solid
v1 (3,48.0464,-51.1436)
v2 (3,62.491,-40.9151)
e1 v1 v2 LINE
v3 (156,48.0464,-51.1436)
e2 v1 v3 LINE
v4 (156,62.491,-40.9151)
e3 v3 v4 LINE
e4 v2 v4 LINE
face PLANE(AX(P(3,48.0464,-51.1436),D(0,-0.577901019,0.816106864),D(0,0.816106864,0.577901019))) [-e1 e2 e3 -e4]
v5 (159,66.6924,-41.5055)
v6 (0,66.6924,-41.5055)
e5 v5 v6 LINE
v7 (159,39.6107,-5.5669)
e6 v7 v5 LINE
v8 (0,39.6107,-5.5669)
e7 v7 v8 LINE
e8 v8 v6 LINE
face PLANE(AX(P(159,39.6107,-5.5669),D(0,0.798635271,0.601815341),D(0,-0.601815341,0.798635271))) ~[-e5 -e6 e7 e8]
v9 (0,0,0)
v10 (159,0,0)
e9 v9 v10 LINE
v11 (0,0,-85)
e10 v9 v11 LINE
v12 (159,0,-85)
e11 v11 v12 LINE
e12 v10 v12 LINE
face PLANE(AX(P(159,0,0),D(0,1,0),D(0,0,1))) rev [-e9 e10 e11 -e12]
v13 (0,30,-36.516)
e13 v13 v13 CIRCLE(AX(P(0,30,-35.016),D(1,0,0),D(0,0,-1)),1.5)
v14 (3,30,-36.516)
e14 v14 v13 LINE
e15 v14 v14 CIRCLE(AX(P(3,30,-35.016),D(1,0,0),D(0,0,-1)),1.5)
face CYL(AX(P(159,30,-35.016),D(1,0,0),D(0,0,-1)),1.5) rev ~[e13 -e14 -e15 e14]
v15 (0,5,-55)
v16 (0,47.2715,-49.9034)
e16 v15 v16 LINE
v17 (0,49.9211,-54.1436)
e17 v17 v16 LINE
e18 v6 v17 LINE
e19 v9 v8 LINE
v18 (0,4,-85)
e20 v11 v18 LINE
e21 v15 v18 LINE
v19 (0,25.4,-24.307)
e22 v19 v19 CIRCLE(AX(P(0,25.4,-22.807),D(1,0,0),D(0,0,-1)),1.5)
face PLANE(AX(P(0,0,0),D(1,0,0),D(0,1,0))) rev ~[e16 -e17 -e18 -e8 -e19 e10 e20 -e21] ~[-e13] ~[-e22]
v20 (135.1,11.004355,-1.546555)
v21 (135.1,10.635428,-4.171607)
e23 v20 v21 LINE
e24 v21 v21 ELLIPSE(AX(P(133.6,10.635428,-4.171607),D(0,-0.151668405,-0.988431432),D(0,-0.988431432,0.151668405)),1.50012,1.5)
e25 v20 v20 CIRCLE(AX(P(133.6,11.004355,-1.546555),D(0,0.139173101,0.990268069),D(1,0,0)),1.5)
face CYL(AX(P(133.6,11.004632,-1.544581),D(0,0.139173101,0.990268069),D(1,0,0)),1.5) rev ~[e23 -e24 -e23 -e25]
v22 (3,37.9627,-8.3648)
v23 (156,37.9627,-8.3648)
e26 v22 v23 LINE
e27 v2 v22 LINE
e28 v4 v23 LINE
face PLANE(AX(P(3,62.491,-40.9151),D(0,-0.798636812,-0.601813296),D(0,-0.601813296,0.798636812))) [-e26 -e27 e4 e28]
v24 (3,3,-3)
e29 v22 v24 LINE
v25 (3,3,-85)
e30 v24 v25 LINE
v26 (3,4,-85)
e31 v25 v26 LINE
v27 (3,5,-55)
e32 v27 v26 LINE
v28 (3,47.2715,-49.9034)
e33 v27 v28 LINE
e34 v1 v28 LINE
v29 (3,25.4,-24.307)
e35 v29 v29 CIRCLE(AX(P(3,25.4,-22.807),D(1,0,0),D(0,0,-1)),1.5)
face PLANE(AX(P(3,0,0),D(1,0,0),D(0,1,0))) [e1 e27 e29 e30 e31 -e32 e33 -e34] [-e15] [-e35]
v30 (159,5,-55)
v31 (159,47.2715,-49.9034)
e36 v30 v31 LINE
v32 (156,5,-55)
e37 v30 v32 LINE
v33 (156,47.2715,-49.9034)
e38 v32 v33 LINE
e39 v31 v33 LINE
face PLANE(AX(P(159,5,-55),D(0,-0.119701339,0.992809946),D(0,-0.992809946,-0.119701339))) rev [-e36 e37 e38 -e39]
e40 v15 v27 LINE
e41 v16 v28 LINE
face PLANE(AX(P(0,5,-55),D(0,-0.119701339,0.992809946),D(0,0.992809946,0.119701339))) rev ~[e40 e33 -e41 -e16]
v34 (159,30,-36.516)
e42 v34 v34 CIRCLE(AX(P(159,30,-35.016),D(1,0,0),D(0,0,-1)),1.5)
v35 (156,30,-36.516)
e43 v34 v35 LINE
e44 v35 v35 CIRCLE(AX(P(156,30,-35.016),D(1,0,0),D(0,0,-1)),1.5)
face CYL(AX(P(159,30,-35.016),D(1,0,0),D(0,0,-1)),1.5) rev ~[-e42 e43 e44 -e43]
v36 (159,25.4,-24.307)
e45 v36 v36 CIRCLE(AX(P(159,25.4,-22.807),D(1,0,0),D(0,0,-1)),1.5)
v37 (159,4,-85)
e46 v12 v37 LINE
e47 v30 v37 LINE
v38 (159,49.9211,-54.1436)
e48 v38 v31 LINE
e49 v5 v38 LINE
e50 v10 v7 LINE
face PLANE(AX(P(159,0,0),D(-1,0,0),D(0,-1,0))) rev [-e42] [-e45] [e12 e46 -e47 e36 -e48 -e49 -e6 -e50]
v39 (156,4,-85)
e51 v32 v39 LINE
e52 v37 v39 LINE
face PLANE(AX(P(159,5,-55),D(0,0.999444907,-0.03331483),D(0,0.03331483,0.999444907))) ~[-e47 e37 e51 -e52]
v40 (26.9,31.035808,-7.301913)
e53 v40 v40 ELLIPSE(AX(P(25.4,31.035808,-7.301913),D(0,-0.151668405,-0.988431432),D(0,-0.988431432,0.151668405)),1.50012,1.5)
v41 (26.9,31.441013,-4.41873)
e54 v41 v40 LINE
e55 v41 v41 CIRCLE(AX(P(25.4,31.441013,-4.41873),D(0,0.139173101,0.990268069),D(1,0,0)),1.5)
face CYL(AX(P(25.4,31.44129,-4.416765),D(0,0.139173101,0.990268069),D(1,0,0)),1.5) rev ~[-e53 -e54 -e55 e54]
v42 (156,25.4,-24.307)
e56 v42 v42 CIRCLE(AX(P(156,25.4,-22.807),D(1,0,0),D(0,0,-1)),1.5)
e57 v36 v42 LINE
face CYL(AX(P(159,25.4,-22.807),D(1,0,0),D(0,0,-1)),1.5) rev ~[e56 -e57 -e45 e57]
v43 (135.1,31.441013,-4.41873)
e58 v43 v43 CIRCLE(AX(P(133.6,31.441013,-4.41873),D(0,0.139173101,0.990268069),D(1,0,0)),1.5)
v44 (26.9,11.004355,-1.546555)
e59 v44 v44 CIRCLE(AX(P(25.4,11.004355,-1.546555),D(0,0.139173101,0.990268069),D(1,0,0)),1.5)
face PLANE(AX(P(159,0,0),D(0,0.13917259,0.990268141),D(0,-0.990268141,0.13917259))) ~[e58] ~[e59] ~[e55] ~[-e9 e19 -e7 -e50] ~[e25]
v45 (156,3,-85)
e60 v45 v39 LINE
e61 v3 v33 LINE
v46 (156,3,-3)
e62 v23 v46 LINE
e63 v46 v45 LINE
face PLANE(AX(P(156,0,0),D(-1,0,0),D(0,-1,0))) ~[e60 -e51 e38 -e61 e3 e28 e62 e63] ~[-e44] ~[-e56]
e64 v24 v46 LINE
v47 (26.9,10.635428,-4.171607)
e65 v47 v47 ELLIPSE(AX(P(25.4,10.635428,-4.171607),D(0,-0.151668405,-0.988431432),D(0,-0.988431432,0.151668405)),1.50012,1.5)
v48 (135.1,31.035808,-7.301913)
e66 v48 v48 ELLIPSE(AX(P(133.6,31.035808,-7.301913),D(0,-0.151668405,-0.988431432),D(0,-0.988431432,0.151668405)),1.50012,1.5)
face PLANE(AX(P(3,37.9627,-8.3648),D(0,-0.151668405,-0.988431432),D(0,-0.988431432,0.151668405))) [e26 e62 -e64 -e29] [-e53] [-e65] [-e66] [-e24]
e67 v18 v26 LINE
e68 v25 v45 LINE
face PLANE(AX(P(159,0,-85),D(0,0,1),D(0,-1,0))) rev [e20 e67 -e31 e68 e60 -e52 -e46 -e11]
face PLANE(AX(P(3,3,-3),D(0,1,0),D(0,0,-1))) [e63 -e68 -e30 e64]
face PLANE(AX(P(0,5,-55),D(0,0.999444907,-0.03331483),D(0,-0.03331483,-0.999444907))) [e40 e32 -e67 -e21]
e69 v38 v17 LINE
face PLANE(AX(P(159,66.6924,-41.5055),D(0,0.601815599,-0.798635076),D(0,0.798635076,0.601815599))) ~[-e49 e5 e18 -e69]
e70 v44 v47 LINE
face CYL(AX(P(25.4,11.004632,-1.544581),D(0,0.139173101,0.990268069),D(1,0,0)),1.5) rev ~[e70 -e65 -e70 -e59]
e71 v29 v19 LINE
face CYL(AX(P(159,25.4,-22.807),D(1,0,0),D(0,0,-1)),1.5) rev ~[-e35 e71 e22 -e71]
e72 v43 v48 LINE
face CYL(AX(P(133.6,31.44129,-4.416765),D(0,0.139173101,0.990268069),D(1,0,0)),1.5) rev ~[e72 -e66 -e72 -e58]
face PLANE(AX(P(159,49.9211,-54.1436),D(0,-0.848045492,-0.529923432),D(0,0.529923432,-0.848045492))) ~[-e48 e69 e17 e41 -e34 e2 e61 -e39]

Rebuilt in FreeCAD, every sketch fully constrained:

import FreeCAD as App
import Part
import Sketcher

V = App.Vector
Q = App.Units.Quantity


def add_polygon(sketch, points):
    """Adds a closed chain of lines whose ends are joined by coincident constraints."""
    first, n = sketch.GeometryCount, len(points)
    for a, b in zip(points, points[1:] + points[:1]):
        sketch.addGeometry(Part.LineSegment(App.Vector(*a, 0), App.Vector(*b, 0)), False)
    for i in range(n):
        sketch.addConstraint(Sketcher.Constraint("Coincident", first + i, 2, first + (i + 1) % n, 1))

doc = App.newDocument("Part")
params = doc.addObject("Spreadsheet::Sheet", "Params")
for row, (alias, value) in enumerate([
    ("sketch1_width", "4 mm"),
    ("sketch1_height", "85 mm"),
    ("sketch1_length", "40 mm"),
    ("sketch1_length2", "5 mm"),
    ("sketch1_length3", "21 mm"),
    ("pad1_length", "3 mm"),
    ("sketch2_width", "3 mm"),
    ("sketch2_height", "85 mm"),
    ("sketch2_length", "40 mm"),
    ("sketch2_length2", "21 mm"),
    ("sketch2_length3", "45 mm"),
    ("pad2_length", "153 mm"),
    ("sketch3_diameter", "3 mm"),
    ("pocket1_length", "200 mm"),
    ("sketch4_diameter", "3 mm"),
    ("pocket2_length", "10 mm"),
], start=1):
    params.set(f"A{row}", alias)
    params.set(f"B{row}", "=" + value)
    params.setAlias(f"B{row}", alias)

body = doc.addObject("PartDesign::Body", "Body")

sketch1 = body.newObject("Sketcher::SketchObject", "Sketch")
sketch1.AttachmentSupport = (doc.getObject("YZ_Plane"), [""])
sketch1.MapMode = "FlatFace"
add_polygon(sketch1, [(39.6, -5.6), (0, 0), (0, -85), (4, -85), (5, -55), (47.3, -49.9), (49.9, -54.1), (66.7, -41.5)])
sketch1.addConstraint([
    Sketcher.Constraint("Vertical", 1),
    Sketcher.Constraint("Horizontal", 2),
    Sketcher.Constraint("Coincident", 0, 2, -1, 1),
    Sketcher.Constraint("Perpendicular", 6, 7),
    Sketcher.Constraint("DistanceX", 2, 1, 2, 2, Q("4 mm")),
    Sketcher.Constraint("DistanceY", 1, 2, 1, 1, Q("85 mm")),
    Sketcher.Constraint("Distance", 0, Q("40 mm")),
    Sketcher.Constraint("Distance", 5, Q("5 mm")),
    Sketcher.Constraint("Distance", 6, Q("21 mm")),
    Sketcher.Constraint("Distance", 7, Q("45 mm")),
    Sketcher.Constraint("DistanceX", -1, 1, 3, 2, Q("5 mm")),
    Sketcher.Constraint("DistanceY", 2, 2, 3, 2, Q("30 mm")),
    Sketcher.Constraint("Angle", 0, Q("172 deg")),
    Sketcher.Constraint("Angle", 5, Q("-57.9997 deg")),
    Sketcher.Constraint("Angle", 6, Q("37 deg")),
])
sketch1.setExpression("Constraints[12]", "Params.sketch1_width")
sketch1.setExpression("Constraints[13]", "Params.sketch1_height")
sketch1.setExpression("Constraints[14]", "Params.sketch1_length")
sketch1.setExpression("Constraints[15]", "Params.sketch1_length2")
sketch1.setExpression("Constraints[16]", "Params.sketch1_length3")
pad1 = body.newObject("PartDesign::Pad", "Pad")
pad1.Profile = sketch1
pad1.setExpression("Length", "Params.pad1_length")

sketch2 = body.newObject("Sketcher::SketchObject", "Sketch001")
sketch2.AttachmentSupport = (doc.getObject("YZ_Plane"), [""])
sketch2.MapMode = "FlatFace"
sketch2.AttachmentOffset = App.Placement(V(0, 0, 3), App.Rotation())
add_polygon(sketch2, [(39.6, -5.6), (0, 0), (0, -85), (3, -85), (3, -3), (38, -8.4), (62.5, -40.9), (48, -51.1), (49.9, -54.1), (66.7, -41.5)])
sketch2.addConstraint([
    Sketcher.Constraint("Vertical", 1),
    Sketcher.Constraint("Horizontal", 2),
    Sketcher.Constraint("Vertical", 3),
    Sketcher.Constraint("Coincident", 0, 2, -1, 1),
    Sketcher.Constraint("Perpendicular", 5, 8),
    Sketcher.Constraint("Perpendicular", 8, 9),
    Sketcher.Constraint("DistanceX", 2, 1, 2, 2, Q("3 mm")),
    Sketcher.Constraint("DistanceY", 3, 2, -1, 1, Q("3 mm")),
    Sketcher.Constraint("DistanceY", 7, 2, 6, 2, Q("3 mm")),
    Sketcher.Constraint("DistanceY", 1, 2, 1, 1, Q("85 mm")),
    Sketcher.Constraint("Angle", 0, Q("172 deg")),
    Sketcher.Constraint("Angle", 5, Q("-53.0001 deg")),
    Sketcher.Constraint("Angle", 7, Q("-57.9997 deg")),
    Sketcher.Constraint("Distance", 0, Q("40 mm")),
    Sketcher.Constraint("Distance", 8, Q("21 mm")),
    Sketcher.Constraint("Distance", 9, Q("45 mm")),
    Sketcher.Constraint("DistanceX", 7, 2, 5, 2, Q("12.57 mm")),
    Sketcher.Constraint("Distance", 4, Q("35.372 mm")),
    Sketcher.Constraint("DistanceY", 5, 2, -1, 1, Q("40.915 mm")),
])
sketch2.setExpression("Constraints[16]", "Params.sketch2_width")
sketch2.setExpression("Constraints[19]", "Params.sketch2_height")
sketch2.setExpression("Constraints[23]", "Params.sketch2_length")
sketch2.setExpression("Constraints[24]", "Params.sketch2_length2")
sketch2.setExpression("Constraints[25]", "Params.sketch2_length3")
pad2 = body.newObject("PartDesign::Pad", "Pad001")
pad2.Profile = sketch2
pad2.setExpression("Length", "Params.pad2_length")
doc.recompute()

datumplane = body.newObject("PartDesign::Plane", "DatumPlane")
datumplane.AttachmentSupport = (doc.getObject("YZ_Plane"), [""])
datumplane.MapMode = "FlatFace"
datumplane.AttachmentOffset = App.Placement(V(0, 0, 79.5), App.Rotation())
mirrored = body.newObject("PartDesign::Mirrored", "Mirrored")
mirrored.Originals = [pad1]
mirrored.MirrorPlane = (datumplane, [""])
body.Tip = mirrored

sketch3 = body.newObject("Sketcher::SketchObject", "Sketch002")
sketch3.AttachmentSupport = (doc.getObject("YZ_Plane"), [""])
sketch3.MapMode = "FlatFace"
sketch3.AttachmentOffset = App.Placement(V(0, 0, 159), App.Rotation())
sketch3.addGeometry([
    Part.Circle(V(25.4, -22.8, 0), V(0, 0, 1), 1.5),
    Part.Circle(V(30, -35, 0), V(0, 0, 1), 1.5),
], False)
sketch3.addConstraint([
    Sketcher.Constraint("Equal", 0, 1),
    Sketcher.Constraint("Diameter", 0, Q("3 mm")),
    Sketcher.Constraint("DistanceX", -1, 1, 1, 3, Q("30 mm")),
    Sketcher.Constraint("DistanceX", -1, 1, 0, 3, Q("25.4 mm")),
    Sketcher.Constraint("DistanceY", 0, 3, -1, 1, Q("22.807 mm")),
    Sketcher.Constraint("DistanceY", 1, 3, -1, 1, Q("35.016 mm")),
])
sketch3.setExpression("Constraints[1]", "Params.sketch3_diameter")
pocket1 = body.newObject("PartDesign::Pocket", "Pocket")
pocket1.Profile = sketch3
pocket1.setExpression("Length", "Params.pocket1_length")

sketch4 = body.newObject("Sketcher::SketchObject", "Sketch003")
sketch4.Placement = App.Placement(V(0, 0, 0), App.Rotation(V(1, 0, 0), V(0, 0.990268069, -0.139173101), V(0, 0.139173101, 0.990268069), "ZXY"))
sketch4.addGeometry([
    Part.Circle(V(25.4, 31.8, 0), V(0, 0, 1), 1.5),
    Part.Circle(V(25.4, 11.1, 0), V(0, 0, 1), 1.5),
    Part.Circle(V(133.6, 31.8, 0), V(0, 0, 1), 1.5),
    Part.Circle(V(133.6, 11.1, 0), V(0, 0, 1), 1.5),
], False)
sketch4.addConstraint([
    Sketcher.Constraint("Equal", 0, 1),
    Sketcher.Constraint("Equal", 1, 2),
    Sketcher.Constraint("Equal", 2, 3),
    Sketcher.Constraint("Horizontal", 0, 3, 2, 3),
    Sketcher.Constraint("Horizontal", 1, 3, 3, 3),
    Sketcher.Constraint("Vertical", 0, 3, 1, 3),
    Sketcher.Constraint("Vertical", 2, 3, 3, 3),
    Sketcher.Constraint("Diameter", 0, Q("3 mm")),
    Sketcher.Constraint("DistanceX", -1, 1, 0, 3, Q("25.4 mm")),
    Sketcher.Constraint("DistanceY", -1, 1, 0, 3, Q("31.75 mm")),
    Sketcher.Constraint("DistanceY", -1, 1, 1, 3, Q("11.1125 mm")),
    Sketcher.Constraint("DistanceX", -1, 1, 2, 3, Q("133.6 mm")),
])
sketch4.setExpression("Constraints[7]", "Params.sketch4_diameter")
pocket2 = body.newObject("PartDesign::Pocket", "Pocket001")
pocket2.Profile = sketch4
pocket2.setExpression("Length", "Params.pocket2_length")

doc.recompute()
